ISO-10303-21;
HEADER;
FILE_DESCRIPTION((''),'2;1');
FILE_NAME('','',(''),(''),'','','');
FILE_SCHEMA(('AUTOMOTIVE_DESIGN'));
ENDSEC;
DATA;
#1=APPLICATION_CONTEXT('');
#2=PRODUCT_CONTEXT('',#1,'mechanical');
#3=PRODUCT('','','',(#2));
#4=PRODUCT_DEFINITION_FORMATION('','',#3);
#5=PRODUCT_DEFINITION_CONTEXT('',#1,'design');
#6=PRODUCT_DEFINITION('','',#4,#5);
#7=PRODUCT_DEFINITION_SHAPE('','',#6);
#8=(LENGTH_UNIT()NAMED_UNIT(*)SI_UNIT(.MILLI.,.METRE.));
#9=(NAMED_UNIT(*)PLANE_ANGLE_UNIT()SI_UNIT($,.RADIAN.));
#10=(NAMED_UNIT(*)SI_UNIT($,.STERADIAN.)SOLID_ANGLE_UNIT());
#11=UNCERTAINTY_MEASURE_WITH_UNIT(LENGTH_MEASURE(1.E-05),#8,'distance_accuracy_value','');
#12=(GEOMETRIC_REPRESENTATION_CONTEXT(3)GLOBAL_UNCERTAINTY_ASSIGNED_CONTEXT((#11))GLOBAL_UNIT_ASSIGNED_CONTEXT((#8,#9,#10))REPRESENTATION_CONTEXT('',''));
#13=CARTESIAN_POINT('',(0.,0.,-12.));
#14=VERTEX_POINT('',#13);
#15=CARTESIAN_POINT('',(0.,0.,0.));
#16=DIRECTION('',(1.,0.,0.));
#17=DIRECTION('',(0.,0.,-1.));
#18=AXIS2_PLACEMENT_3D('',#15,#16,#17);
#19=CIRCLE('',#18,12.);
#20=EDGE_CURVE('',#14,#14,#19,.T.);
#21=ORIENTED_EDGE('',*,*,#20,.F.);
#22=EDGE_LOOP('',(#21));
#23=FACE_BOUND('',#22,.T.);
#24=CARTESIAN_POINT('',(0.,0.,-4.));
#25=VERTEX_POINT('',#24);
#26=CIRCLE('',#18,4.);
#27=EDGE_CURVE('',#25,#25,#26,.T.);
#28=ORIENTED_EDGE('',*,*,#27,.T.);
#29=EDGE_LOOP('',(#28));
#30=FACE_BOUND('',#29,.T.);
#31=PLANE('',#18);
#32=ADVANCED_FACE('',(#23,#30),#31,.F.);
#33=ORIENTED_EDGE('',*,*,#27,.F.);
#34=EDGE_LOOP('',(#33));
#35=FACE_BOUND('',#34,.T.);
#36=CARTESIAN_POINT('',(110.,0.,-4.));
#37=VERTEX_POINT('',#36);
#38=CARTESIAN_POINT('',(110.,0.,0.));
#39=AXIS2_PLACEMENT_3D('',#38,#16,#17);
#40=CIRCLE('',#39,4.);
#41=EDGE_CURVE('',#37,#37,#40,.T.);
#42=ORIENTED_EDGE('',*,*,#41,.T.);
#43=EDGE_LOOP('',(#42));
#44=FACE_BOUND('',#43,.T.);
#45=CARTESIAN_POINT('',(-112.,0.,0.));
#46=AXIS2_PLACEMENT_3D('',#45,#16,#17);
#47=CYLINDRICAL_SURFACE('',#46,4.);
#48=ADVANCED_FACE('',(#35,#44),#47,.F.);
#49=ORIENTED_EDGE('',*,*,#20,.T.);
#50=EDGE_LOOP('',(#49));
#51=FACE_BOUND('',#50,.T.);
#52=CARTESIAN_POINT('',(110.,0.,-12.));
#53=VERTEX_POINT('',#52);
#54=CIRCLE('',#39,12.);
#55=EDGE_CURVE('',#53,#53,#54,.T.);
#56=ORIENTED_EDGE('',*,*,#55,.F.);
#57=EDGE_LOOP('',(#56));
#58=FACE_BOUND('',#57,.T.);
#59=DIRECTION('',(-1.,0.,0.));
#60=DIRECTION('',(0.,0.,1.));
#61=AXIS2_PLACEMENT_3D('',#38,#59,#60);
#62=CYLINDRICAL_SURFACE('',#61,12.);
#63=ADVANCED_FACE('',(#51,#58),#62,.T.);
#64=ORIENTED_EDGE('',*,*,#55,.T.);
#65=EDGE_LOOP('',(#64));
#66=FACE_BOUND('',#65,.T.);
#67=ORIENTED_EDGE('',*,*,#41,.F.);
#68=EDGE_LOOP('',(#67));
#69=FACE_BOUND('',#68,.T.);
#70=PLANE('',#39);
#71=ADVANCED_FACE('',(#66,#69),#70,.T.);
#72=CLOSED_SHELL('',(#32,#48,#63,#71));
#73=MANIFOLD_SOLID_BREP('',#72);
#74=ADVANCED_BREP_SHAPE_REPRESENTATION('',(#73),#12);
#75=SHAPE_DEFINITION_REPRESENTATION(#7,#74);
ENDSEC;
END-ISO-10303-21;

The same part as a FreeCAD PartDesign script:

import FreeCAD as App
import Part
import Sketcher
Q = App.Units.Quantity

doc = App.newDocument("Part")
params = doc.addObject("Spreadsheet::Sheet", "Params")
for row, (alias, value) in enumerate([
    ("sketch1_diameter", "24 mm"),
    ("pad1_length", "110 mm"),
    ("sketch2_diameter", "8 mm"),
    ("pocket1_length", "222 mm"),
], start=1):
    params.set(f"A{row}", alias)
    params.set(f"B{row}", "=" + value)
    params.setAlias(f"B{row}", alias)

body = doc.addObject("PartDesign::Body", "Body")

# Sketch on YZ plane
sketch1 = body.newObject("Sketcher::SketchObject", "Sketch")
sketch1.AttachmentSupport = (doc.getObject("YZ_Plane"), [""])
sketch1.MapMode = "FlatFace"
sketch1.addGeometry(Part.Circle(App.Vector(0, 0, 0), App.Vector(0, 0, 1), 12), False)
sketch1.addConstraint(Sketcher.Constraint("Coincident", 0, 3, -1, 1))
sketch1.addConstraint(Sketcher.Constraint("Diameter", 0, Q("24 mm")))
sketch1.setExpression("Constraints[1]", "Params.sketch1_diameter")
pad1 = body.newObject("PartDesign::Pad", "Pad")
pad1.Profile = sketch1
pad1.setExpression("Length", "Params.pad1_length")

# Sketch on YZ plane
sketch2 = body.newObject("Sketcher::SketchObject", "Sketch001")
sketch2.AttachmentSupport = (doc.getObject("YZ_Plane"), [""])
sketch2.MapMode = "FlatFace"
sketch2.AttachmentOffset = App.Placement(App.Vector(0, 0, 110), App.Rotation())
sketch2.addGeometry(Part.Circle(App.Vector(0, 0, 0), App.Vector(0, 0, 1), 4), False)
sketch2.addConstraint(Sketcher.Constraint("Coincident", 0, 3, -1, 1))
sketch2.addConstraint(Sketcher.Constraint("Diameter", 0, Q("8 mm")))
sketch2.setExpression("Constraints[1]", "Params.sketch2_diameter")
pocket1 = body.newObject("PartDesign::Pocket", "Pocket")
pocket1.Profile = sketch2
pocket1.setExpression("Length", "Params.pocket1_length")

doc.recompute()
